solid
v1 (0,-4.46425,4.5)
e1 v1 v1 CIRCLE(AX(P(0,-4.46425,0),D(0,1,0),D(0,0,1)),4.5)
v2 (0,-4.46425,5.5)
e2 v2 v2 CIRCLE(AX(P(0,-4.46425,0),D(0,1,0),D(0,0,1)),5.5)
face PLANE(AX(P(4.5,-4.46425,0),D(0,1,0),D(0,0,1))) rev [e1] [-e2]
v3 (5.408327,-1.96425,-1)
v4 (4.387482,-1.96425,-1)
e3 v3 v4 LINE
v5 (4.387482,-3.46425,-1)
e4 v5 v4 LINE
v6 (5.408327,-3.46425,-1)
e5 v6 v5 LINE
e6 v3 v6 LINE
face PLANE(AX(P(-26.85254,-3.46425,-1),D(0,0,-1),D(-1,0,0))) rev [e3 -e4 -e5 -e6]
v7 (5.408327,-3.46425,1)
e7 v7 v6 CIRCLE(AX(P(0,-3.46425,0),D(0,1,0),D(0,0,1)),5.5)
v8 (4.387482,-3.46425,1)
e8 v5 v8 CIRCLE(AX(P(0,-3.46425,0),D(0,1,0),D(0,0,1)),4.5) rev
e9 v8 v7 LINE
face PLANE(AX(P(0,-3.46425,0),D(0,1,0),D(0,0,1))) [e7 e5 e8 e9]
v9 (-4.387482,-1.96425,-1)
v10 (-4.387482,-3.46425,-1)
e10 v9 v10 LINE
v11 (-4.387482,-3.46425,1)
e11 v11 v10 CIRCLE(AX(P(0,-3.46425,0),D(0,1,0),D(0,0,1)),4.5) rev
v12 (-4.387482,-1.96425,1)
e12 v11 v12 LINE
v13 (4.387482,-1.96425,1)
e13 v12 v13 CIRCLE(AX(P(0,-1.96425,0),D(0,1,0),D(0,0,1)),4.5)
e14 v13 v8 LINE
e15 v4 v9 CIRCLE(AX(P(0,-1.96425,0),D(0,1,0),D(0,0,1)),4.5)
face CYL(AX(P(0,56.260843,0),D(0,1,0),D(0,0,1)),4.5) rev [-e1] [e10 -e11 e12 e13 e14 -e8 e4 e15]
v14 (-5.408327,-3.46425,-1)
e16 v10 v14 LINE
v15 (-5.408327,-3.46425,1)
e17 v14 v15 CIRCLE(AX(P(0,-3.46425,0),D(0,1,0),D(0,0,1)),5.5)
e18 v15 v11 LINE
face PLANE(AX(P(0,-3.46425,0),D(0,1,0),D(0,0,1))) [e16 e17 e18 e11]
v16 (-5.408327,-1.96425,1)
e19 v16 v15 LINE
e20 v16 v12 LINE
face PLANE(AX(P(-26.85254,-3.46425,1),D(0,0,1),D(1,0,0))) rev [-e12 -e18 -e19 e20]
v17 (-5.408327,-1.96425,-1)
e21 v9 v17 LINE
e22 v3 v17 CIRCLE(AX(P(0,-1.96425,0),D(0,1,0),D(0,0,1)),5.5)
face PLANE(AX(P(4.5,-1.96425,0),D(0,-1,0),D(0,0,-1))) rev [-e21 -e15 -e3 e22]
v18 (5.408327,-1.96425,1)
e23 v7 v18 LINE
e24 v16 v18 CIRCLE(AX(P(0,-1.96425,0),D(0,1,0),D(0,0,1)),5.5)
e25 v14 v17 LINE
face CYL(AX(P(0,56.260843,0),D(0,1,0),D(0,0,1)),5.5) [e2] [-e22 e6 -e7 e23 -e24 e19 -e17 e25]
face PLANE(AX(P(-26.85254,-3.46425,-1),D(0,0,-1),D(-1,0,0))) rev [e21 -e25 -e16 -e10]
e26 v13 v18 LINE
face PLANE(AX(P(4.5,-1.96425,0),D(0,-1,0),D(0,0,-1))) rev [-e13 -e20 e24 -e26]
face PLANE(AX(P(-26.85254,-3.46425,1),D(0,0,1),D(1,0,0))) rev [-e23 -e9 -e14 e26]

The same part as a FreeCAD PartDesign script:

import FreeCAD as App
import Part
import Sketcher


def add_polygon(sketch, points):
    """Adds a closed chain of lines whose ends are joined by coincident constraints."""
    first, n = sketch.GeometryCount, len(points)
    for a, b in zip(points, points[1:] + points[:1]):
        sketch.addGeometry(Part.LineSegment(App.Vector(*a, 0), App.Vector(*b, 0)), False)
    for i in range(n):
        sketch.addConstraint(Sketcher.Constraint("Coincident", first + i, 2, first + (i + 1) % n, 1))

doc = App.newDocument("Part")
body = doc.addObject("PartDesign::Body", "Body")

# Sketch on XY plane
sketch1 = body.newObject("Sketcher::SketchObject", "Sketch")
sketch1.AttachmentSupport = (doc.getObject("XY_Plane"), [""])
sketch1.MapMode = "FlatFace"
add_polygon(sketch1, [(4.5, -2), (4.5, -4.5), (5.5, -4.5), (5.5, -2)])  # lines 0-3
sketch1.addConstraint([
    Sketcher.Constraint("Vertical", 0),
    Sketcher.Constraint("Horizontal", 1),
    Sketcher.Constraint("Vertical", 2),
    Sketcher.Constraint("Horizontal", 3),
    Sketcher.Constraint("DistanceX", 1, 1, 1, 2, 1.0),
    Sketcher.Constraint("DistanceY", 0, 2, 0, 1, 2.5),
    Sketcher.Constraint("DistanceX", -1, 1, 0, 2, 4.5),
    Sketcher.Constraint("DistanceY", 0, 2, -1, 1, 4.46425),
])
revolution = body.newObject("PartDesign::Revolution", "Revolution")
revolution.Profile = sketch1
revolution.ReferenceAxis = (sketch1, ["V_Axis"])
revolution.Angle = 360

# Sketch on XZ plane
sketch2 = body.newObject("Sketcher::SketchObject", "Sketch001")
sketch2.AttachmentSupport = (doc.getObject("XZ_Plane"), [""])
sketch2.MapMode = "FlatFace"
sketch2.AttachmentOffset = App.Placement(App.Vector(0, 0, 1.96425), App.Rotation())
add_polygon(sketch2, [(-26.9, -1), (-26.9, 1), (26.9, 1), (26.9, -1)])  # lines 0-3
sketch2.addConstraint([
    Sketcher.Constraint("Vertical", 0),
    Sketcher.Constraint("Horizontal", 1),
    Sketcher.Constraint("Vertical", 2),
    Sketcher.Constraint("Horizontal", 3),
    Sketcher.Constraint("Symmetric", 0, 2, 2, 2, -1, 1),
    Sketcher.Constraint("DistanceY", 0, 1, 0, 2, 2.0),
    Sketcher.Constraint("DistanceX", 1, 1, 1, 2, 53.705081),
])
pocket1 = body.newObject("PartDesign::Pocket", "Pocket")
pocket1.Profile = sketch2
pocket1.Length = 1.5
pocket1.Reversed = True

doc.recompute()
